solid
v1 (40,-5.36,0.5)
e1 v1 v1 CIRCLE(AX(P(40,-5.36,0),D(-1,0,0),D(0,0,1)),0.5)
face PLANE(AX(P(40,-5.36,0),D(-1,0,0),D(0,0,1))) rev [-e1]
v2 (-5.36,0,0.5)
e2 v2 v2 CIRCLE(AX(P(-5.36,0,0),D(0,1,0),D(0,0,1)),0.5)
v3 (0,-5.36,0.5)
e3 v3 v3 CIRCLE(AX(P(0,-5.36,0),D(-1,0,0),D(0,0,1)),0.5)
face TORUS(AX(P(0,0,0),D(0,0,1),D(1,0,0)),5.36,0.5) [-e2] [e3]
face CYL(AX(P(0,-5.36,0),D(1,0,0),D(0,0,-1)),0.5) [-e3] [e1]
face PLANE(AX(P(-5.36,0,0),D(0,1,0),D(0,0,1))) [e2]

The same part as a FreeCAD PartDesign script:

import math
import FreeCAD as App
import Part
import Sketcher
from FreeCAD import Vector

doc = App.newDocument("Part")
params = doc.addObject("Spreadsheet::Sheet", "Params")
for row, (alias, value) in enumerate([
    ("sketch1_diameter", "1 mm"),
    ("sketch2_width", "40 mm"),
    ("sketch2_radius", "5.36 mm"),
], start=1):
    params.set(f"A{row}", alias)
    params.set(f"B{row}", "=" + value)
    params.setAlias(f"B{row}", alias)

body = doc.addObject("PartDesign::Body", "Body")

# Sketch on XZ plane
sketch1 = body.newObject("Sketcher::SketchObject", "Sketch")
sketch1.AttachmentSupport = (doc.getObject("XZ_Plane"), [""])
sketch1.MapMode = "FlatFace"
sketch1.addGeometry(Part.Circle(Vector(-5.4, 0, 0), Vector(0, 0, 1), 0.5), False)
sketch1.addConstraint([
    Sketcher.Constraint("PointOnObject", 0, 3, -1),
    Sketcher.Constraint("Diameter", 0, 1.0),
    Sketcher.Constraint("DistanceX", 0, 3, -1, 1, 5.36),
])
sketch1.setExpression("Constraints[1]", "Params.sketch1_diameter")

# Sketch on XY plane
sketch2 = body.newObject("Sketcher::SketchObject", "Sketch001")
sketch2.AttachmentSupport = (doc.getObject("XY_Plane"), [""])
sketch2.MapMode = "FlatFace"
sketch2.addGeometry([
    Part.LineSegment(Vector(40, -5, 0), Vector(0, -5, 0)),
    Part.ArcOfCircle(Part.Circle(Vector(0, 0, 0), Vector(0, 0, 1), 5), math.radians(-180), math.radians(-90)),
], False)
sketch2.addConstraint([
    Sketcher.Constraint("Tangent", 0, 2, 1, 2),
    Sketcher.Constraint("Horizontal", 0),
    Sketcher.Constraint("Coincident", 1, 3, -1, 1),
    Sketcher.Constraint("PointOnObject", 1, 1, -1),
    Sketcher.Constraint("DistanceX", 0, 2, 0, 1, 40.0),
    Sketcher.Constraint("Radius", 1, 5.36),
])
sketch2.setExpression("Constraints[4]", "Params.sketch2_width")
sketch2.setExpression("Constraints[5]", "Params.sketch2_radius")
doc.recompute()

additivepipe = body.newObject("PartDesign::AdditivePipe", "AdditivePipe")
additivepipe.Profile = sketch1
additivepipe.Spine = (sketch2, ["Edge1", "Edge2"])

doc.recompute()
